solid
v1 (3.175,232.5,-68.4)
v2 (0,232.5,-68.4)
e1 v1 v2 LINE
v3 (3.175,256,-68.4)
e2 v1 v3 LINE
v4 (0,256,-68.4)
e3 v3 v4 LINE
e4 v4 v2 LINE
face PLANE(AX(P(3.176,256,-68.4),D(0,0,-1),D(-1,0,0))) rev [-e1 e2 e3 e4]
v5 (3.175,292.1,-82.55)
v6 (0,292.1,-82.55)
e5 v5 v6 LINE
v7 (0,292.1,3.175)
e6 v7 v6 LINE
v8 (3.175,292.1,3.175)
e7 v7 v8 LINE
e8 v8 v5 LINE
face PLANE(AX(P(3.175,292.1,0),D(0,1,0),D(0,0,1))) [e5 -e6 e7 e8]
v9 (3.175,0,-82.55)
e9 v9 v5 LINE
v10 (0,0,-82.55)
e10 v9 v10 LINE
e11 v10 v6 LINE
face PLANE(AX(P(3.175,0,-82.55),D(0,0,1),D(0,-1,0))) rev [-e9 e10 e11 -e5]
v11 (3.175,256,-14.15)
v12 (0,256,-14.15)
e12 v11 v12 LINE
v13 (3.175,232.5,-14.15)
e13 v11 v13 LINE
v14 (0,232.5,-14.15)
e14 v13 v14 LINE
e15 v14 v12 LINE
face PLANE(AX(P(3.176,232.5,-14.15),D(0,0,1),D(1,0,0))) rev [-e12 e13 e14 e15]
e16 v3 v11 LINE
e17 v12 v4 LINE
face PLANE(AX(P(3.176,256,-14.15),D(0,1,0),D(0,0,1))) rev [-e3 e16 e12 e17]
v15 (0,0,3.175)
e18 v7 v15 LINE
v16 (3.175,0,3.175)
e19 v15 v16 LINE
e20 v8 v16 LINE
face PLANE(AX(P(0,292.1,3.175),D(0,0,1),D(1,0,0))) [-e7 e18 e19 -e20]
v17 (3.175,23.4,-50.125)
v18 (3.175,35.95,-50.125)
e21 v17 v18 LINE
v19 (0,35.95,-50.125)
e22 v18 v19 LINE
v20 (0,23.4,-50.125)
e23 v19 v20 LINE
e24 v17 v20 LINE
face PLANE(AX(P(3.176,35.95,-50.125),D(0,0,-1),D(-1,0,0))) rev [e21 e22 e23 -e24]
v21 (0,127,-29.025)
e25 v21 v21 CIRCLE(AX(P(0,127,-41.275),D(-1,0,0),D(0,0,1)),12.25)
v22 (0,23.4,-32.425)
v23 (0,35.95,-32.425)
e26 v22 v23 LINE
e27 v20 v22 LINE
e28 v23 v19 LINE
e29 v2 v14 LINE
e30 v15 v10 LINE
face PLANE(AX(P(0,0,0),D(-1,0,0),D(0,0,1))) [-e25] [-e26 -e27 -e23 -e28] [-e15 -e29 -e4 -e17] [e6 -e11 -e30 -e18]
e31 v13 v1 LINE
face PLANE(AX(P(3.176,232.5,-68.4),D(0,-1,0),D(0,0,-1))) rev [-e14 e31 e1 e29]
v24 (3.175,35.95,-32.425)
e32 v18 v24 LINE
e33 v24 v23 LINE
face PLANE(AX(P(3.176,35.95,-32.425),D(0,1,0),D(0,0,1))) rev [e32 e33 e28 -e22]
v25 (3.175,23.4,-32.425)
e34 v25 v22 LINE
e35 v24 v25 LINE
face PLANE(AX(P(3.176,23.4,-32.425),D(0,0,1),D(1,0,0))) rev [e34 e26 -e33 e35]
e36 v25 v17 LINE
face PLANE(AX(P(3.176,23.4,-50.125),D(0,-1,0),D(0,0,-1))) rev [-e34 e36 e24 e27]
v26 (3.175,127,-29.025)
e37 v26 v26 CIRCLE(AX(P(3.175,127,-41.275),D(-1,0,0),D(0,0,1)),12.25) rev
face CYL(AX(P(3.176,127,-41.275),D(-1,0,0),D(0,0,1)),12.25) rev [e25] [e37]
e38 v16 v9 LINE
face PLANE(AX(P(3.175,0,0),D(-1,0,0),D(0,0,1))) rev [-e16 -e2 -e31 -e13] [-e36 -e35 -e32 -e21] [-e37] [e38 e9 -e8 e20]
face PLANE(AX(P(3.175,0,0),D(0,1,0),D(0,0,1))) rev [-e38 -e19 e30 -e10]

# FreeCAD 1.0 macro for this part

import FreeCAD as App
import Part
import Sketcher
from FreeCAD import Vector

doc = App.newDocument("Part")
body = doc.addObject("PartDesign::Body", "Body")

# Sketch on YZ plane
sketch1 = body.newObject("Sketcher::SketchObject", "Sketch")
sketch1.AttachmentSupport = (doc.getObject("YZ_Plane"), [""])
sketch1.MapMode = "FlatFace"
sketch1.addGeometry([
    Part.LineSegment(Vector(292.1, 0, 0), Vector(0, 0, 0)),
    Part.LineSegment(Vector(0, 0, 0), Vector(0, -82.55, 0)),
    Part.LineSegment(Vector(0, -82.55, 0), Vector(292.1, -82.55, 0)),
    Part.LineSegment(Vector(292.1, -82.55, 0), Vector(292.1, 0, 0)),
], False)
sketch1.addConstraint([
    Sketcher.Constraint("Coincident", 0, 2, 1, 1),
    Sketcher.Constraint("Coincident", 1, 2, 2, 1),
    Sketcher.Constraint("Coincident", 2, 2, 3, 1),
    Sketcher.Constraint("Coincident", 3, 2, 0, 1),
    Sketcher.Constraint("Horizontal", 0),
    Sketcher.Constraint("Vertical", 1),
    Sketcher.Constraint("Horizontal", 2),
    Sketcher.Constraint("Vertical", 3),
    Sketcher.Constraint("Coincident", 0, 2, -1, 1),
    Sketcher.Constraint("DistanceX", 0, 2, 0, 1, 292.1),
    Sketcher.Constraint("DistanceY", 1, 2, 1, 1, 82.55),
])
pad1 = body.newObject("PartDesign::Pad", "Pad")
pad1.Profile = sketch1
pad1.Length = 3.175

# Sketch on YZ plane
sketch2 = body.newObject("Sketcher::SketchObject", "Sketch001")
sketch2.AttachmentSupport = (doc.getObject("YZ_Plane"), [""])
sketch2.MapMode = "FlatFace"
sketch2.addGeometry([
    Part.LineSegment(Vector(254, -66.4, 0), Vector(234.5, -66.4, 0)),
    Part.LineSegment(Vector(234.5, -66.4, 0), Vector(234.5, -16.15, 0)),
    Part.LineSegment(Vector(234.5, -16.15, 0), Vector(254, -16.15, 0)),
    Part.LineSegment(Vector(254, -16.15, 0), Vector(254, -66.4, 0)),
], False)
sketch2.addConstraint([
    Sketcher.Constraint("Coincident", 0, 2, 1, 1),
    Sketcher.Constraint("Coincident", 1, 2, 2, 1),
    Sketcher.Constraint("Coincident", 2, 2, 3, 1),
    Sketcher.Constraint("Coincident", 3, 2, 0, 1),
    Sketcher.Constraint("Horizontal", 0),
    Sketcher.Constraint("Vertical", 1),
    Sketcher.Constraint("Horizontal", 2),
    Sketcher.Constraint("Vertical", 3),
    Sketcher.Constraint("DistanceX", 0, 2, 0, 1, 19.5),
    Sketcher.Constraint("DistanceX", -1, 1, 2, 2, 254.0),
    Sketcher.Constraint("DistanceY", 1, 1, 1, 2, 50.25),
    Sketcher.Constraint("DistanceY", 0, 2, -1, 1, 66.4),
])
pocket1 = body.newObject("PartDesign::Pocket", "Pocket")
pocket1.Profile = sketch2
pocket1.Type = "UpToFirst"
pocket1.Reversed = True

# Sketch on YZ plane
sketch3 = body.newObject("Sketcher::SketchObject", "Sketch002")
sketch3.AttachmentSupport = (doc.getObject("YZ_Plane"), [""])
sketch3.MapMode = "FlatFace"
sketch3.addGeometry(Part.Circle(Vector(127, -41.275, 0), Vector(0, 0, 1), 10.25), False)
sketch3.addConstraint([
    Sketcher.Constraint("Diameter", 0, 20.5),
    Sketcher.Constraint("DistanceX", -1, 1, 0, 3, 127.0),
    Sketcher.Constraint("DistanceY", 0, 3, -1, 1, 41.275),
])
pocket2 = body.newObject("PartDesign::Pocket", "Pocket001")
pocket2.Profile = sketch3
pocket2.Type = "UpToFirst"
pocket2.Reversed = True

# Sketch on YZ plane
sketch4 = body.newObject("Sketcher::SketchObject", "Sketch003")
sketch4.AttachmentSupport = (doc.getObject("YZ_Plane"), [""])
sketch4.MapMode = "FlatFace"
sketch4.addGeometry([
    Part.LineSegment(Vector(33.95, -48.125, 0), Vector(25.4, -48.125, 0)),
    Part.LineSegment(Vector(25.4, -48.125, 0), Vector(25.4, -34.425, 0)),
    Part.LineSegment(Vector(25.4, -34.425, 0), Vector(33.95, -34.425, 0)),
    Part.LineSegment(Vector(33.95, -34.425, 0), Vector(33.95, -48.125, 0)),
], False)
sketch4.addConstraint([
    Sketcher.Constraint("Coincident", 0, 2, 1, 1),
    Sketcher.Constraint("Coincident", 1, 2, 2, 1),
    Sketcher.Constraint("Coincident", 2, 2, 3, 1),
    Sketcher.Constraint("Coincident", 3, 2, 0, 1),
    Sketcher.Constraint("Horizontal", 0),
    Sketcher.Constraint("Vertical", 1),
    Sketcher.Constraint("Horizontal", 2),
    Sketcher.Constraint("Vertical", 3),
    Sketcher.Constraint("DistanceY", 1, 1, 1, 2, 13.7),
    Sketcher.Constraint("DistanceX", 0, 2, 0, 1, 8.55),
    Sketcher.Constraint("DistanceX", -1, 1, 0, 2, 25.4),
    Sketcher.Constraint("DistanceY", 0, 2, -1, 1, 48.125),
])
pocket3 = body.newObject("PartDesign::Pocket", "Pocket002")
pocket3.Profile = sketch4
pocket3.Type = "UpToFirst"
pocket3.Reversed = True

# Sketch on YZ plane
sketch5 = body.newObject("Sketcher::SketchObject", "Sketch004")
sketch5.AttachmentSupport = (doc.getObject("YZ_Plane"), [""])
sketch5.MapMode = "FlatFace"
sketch5.addGeometry([
    Part.Circle(Vector(127, -41.275, 0), Vector(0, 0, 1), 12.25),
    Part.Circle(Vector(127, -41.275, 0), Vector(0, 0, 1), 10.25),
], False)
sketch5.addConstraint([
    Sketcher.Constraint("Coincident", 1, 3, 0, 3),
    Sketcher.Constraint("Diameter", 0, 24.5),
    Sketcher.Constraint("Diameter", 1, 20.5),
    Sketcher.Constraint("DistanceX", -1, 1, 0, 3, 127.0),
    Sketcher.Constraint("DistanceY", 0, 3, -1, 1, 41.275),
])
pocket4 = body.newObject("PartDesign::Pocket", "Pocket003")
pocket4.Profile = sketch5
pocket4.Length = 3.175
pocket4.Reversed = True

# Sketch on YZ plane
sketch6 = body.newObject("Sketcher::SketchObject", "Sketch005")
sketch6.AttachmentSupport = (doc.getObject("YZ_Plane"), [""])
sketch6.MapMode = "FlatFace"
sketch6.addGeometry([
    Part.LineSegment(Vector(256, -68.4, 0), Vector(232.5, -68.4, 0)),  # 0
    Part.LineSegment(Vector(232.5, -68.4, 0), Vector(232.5, -14.15, 0)),  # 1
    Part.LineSegment(Vector(232.5, -14.15, 0), Vector(256, -14.15, 0)),  # 2
    Part.LineSegment(Vector(256, -14.15, 0), Vector(256, -68.4, 0)),  # 3
    Part.LineSegment(Vector(234.5, -16.15, 0), Vector(234.5, -66.4, 0)),  # 4
    Part.LineSegment(Vector(234.5, -66.4, 0), Vector(254, -66.4, 0)),  # 5
    Part.LineSegment(Vector(254, -66.4, 0), Vector(254, -16.15, 0)),  # 6
    Part.LineSegment(Vector(254, -16.15, 0), Vector(234.5, -16.15, 0)),  # 7
], False)
sketch6.addConstraint([
    Sketcher.Constraint("Coincident", 0, 2, 1, 1),
    Sketcher.Constraint("Coincident", 1, 2, 2, 1),
    Sketcher.Constraint("Coincident", 2, 2, 3, 1),
    Sketcher.Constraint("Coincident", 3, 2, 0, 1),
    Sketcher.Constraint("Coincident", 4, 2, 5, 1),
    Sketcher.Constraint("Coincident", 5, 2, 6, 1),
    Sketcher.Constraint("Coincident", 6, 2, 7, 1),
    Sketcher.Constraint("Coincident", 7, 2, 4, 1),
    Sketcher.Constraint("Horizontal", 0),
    Sketcher.Constraint("Vertical", 1),
    Sketcher.Constraint("Horizontal", 2),
    Sketcher.Constraint("Vertical", 3),
    Sketcher.Constraint("Vertical", 4),
    Sketcher.Constraint("Horizontal", 5),
    Sketcher.Constraint("Vertical", 6),
    Sketcher.Constraint("Horizontal", 7),
    Sketcher.Constraint("DistanceX", 0, 2, 0, 1, 23.5),
    Sketcher.Constraint("DistanceX", 5, 1, 5, 2, 19.5),
    Sketcher.Constraint("DistanceX", -1, 1, 2, 2, 256.0),
    Sketcher.Constraint("DistanceX", -1, 1, 5, 2, 254.0),
    Sketcher.Constraint("DistanceY", 0, 2, 4, 2, 2.0),
    Sketcher.Constraint("DistanceY", 6, 2, 2, 2, 2.0),
    Sketcher.Constraint("DistanceY", 1, 1, 1, 2, 54.25),
    Sketcher.Constraint("DistanceY", 0, 2, -1, 1, 68.4),
])
pocket5 = body.newObject("PartDesign::Pocket", "Pocket004")
pocket5.Profile = sketch6
pocket5.Length = 3.175
pocket5.Reversed = True

# Sketch on YZ plane
sketch7 = body.newObject("Sketcher::SketchObject", "Sketch006")
sketch7.AttachmentSupport = (doc.getObject("YZ_Plane"), [""])
sketch7.MapMode = "FlatFace"
sketch7.addGeometry([
    Part.LineSegment(Vector(35.95, -50.125, 0), Vector(23.4, -50.125, 0)),  # 0
    Part.LineSegment(Vector(23.4, -50.125, 0), Vector(23.4, -32.425, 0)),  # 1
    Part.LineSegment(Vector(23.4, -32.425, 0), Vector(35.95, -32.425, 0)),  # 2
    Part.LineSegment(Vector(35.95, -32.425, 0), Vector(35.95, -50.125, 0)),  # 3
    Part.LineSegment(Vector(25.4, -34.425, 0), Vector(25.4, -48.125, 0)),  # 4
    Part.LineSegment(Vector(25.4, -48.125, 0), Vector(33.95, -48.125, 0)),  # 5
    Part.LineSegment(Vector(33.95, -48.125, 0), Vector(33.95, -34.425, 0)),  # 6
    Part.LineSegment(Vector(33.95, -34.425, 0), Vector(25.4, -34.425, 0)),  # 7
], False)
sketch7.addConstraint([
    Sketcher.Constraint("Coincident", 0, 2, 1, 1),
    Sketcher.Constraint("Coincident", 1, 2, 2, 1),
    Sketcher.Constraint("Coincident", 2, 2, 3, 1),
    Sketcher.Constraint("Coincident", 3, 2, 0, 1),
    Sketcher.Constraint("Coincident", 4, 2, 5, 1),
    Sketcher.Constraint("Coincident", 5, 2, 6, 1),
    Sketcher.Constraint("Coincident", 6, 2, 7, 1),
    Sketcher.Constraint("Coincident", 7, 2, 4, 1),
    Sketcher.Constraint("Horizontal", 0),
    Sketcher.Constraint("Vertical", 1),
    Sketcher.Constraint("Horizontal", 2),
    Sketcher.Constraint("Vertical", 3),
    Sketcher.Constraint("Vertical", 4),
    Sketcher.Constraint("Horizontal", 5),
    Sketcher.Constraint("Vertical", 6),
    Sketcher.Constraint("Horizontal", 7),
    Sketcher.Constraint("DistanceY", 1, 1, 1, 2, 17.7),
    Sketcher.Constraint("DistanceY", 4, 2, 4, 1, 13.7),
    Sketcher.Constraint("DistanceX", 0, 2, 4, 2, 2.0),
    Sketcher.Constraint("DistanceY", 0, 2, 4, 2, 2.0),
    Sketcher.Constraint("DistanceX", 5, 2, 3, 2, 2.0),
    Sketcher.Constraint("DistanceX", 0, 2, 0, 1, 12.55),
    Sketcher.Constraint("DistanceX", -1, 1, 0, 2, 23.4),
    Sketcher.Constraint("DistanceY", 0, 2, -1, 1, 50.125),
])
pocket6 = body.newObject("PartDesign::Pocket", "Pocket005")
pocket6.Profile = sketch7
pocket6.Length = 3.175
pocket6.Reversed = True
body2 = doc.addObject("PartDesign::Body", "Body001")

# Sketch on YZ plane
sketch8 = body2.newObject("Sketcher::SketchObject", "Sketch007")
sketch8.AttachmentSupport = (doc.getObject("YZ_Plane001"), [""])
sketch8.MapMode = "FlatFace"
sketch8.AttachmentOffset = App.Placement(Vector(0, 0, 3.175), App.Rotation())
sketch8.addGeometry([
    Part.LineSegment(Vector(292.1, 3.175, 0), Vector(0, 3.175, 0)),
    Part.LineSegment(Vector(0, 3.175, 0), Vector(0, 0, 0)),
    Part.LineSegment(Vector(0, 0, 0), Vector(292.1, 0, 0)),
    Part.LineSegment(Vector(292.1, 0, 0), Vector(292.1, 3.175, 0)),
], False)
sketch8.addConstraint([
    Sketcher.Constraint("Coincident", 0, 2, 1, 1),
    Sketcher.Constraint("Coincident", 1, 2, 2, 1),
    Sketcher.Constraint("Coincident", 2, 2, 3, 1),
    Sketcher.Constraint("Coincident", 3, 2, 0, 1),
    Sketcher.Constraint("Horizontal", 0),
    Sketcher.Constraint("Vertical", 1),
    Sketcher.Constraint("Horizontal", 2),
    Sketcher.Constraint("Vertical", 3),
    Sketcher.Constraint("Coincident", 1, 2, -1, 1),
    Sketcher.Constraint("DistanceX", 0, 2, 0, 1, 292.1),
    Sketcher.Constraint("DistanceY", 1, 2, 1, 1, 3.175),
])
pad2 = body2.newObject("PartDesign::Pad", "Pad001")
pad2.Profile = sketch8
pad2.Length = 3.175
pad2.Reversed = True
doc.recompute()

boolean = body.newObject("PartDesign::Boolean", "Boolean")
boolean.Type = "Fuse"
boolean.addObjects([body2])

doc.recompute()
